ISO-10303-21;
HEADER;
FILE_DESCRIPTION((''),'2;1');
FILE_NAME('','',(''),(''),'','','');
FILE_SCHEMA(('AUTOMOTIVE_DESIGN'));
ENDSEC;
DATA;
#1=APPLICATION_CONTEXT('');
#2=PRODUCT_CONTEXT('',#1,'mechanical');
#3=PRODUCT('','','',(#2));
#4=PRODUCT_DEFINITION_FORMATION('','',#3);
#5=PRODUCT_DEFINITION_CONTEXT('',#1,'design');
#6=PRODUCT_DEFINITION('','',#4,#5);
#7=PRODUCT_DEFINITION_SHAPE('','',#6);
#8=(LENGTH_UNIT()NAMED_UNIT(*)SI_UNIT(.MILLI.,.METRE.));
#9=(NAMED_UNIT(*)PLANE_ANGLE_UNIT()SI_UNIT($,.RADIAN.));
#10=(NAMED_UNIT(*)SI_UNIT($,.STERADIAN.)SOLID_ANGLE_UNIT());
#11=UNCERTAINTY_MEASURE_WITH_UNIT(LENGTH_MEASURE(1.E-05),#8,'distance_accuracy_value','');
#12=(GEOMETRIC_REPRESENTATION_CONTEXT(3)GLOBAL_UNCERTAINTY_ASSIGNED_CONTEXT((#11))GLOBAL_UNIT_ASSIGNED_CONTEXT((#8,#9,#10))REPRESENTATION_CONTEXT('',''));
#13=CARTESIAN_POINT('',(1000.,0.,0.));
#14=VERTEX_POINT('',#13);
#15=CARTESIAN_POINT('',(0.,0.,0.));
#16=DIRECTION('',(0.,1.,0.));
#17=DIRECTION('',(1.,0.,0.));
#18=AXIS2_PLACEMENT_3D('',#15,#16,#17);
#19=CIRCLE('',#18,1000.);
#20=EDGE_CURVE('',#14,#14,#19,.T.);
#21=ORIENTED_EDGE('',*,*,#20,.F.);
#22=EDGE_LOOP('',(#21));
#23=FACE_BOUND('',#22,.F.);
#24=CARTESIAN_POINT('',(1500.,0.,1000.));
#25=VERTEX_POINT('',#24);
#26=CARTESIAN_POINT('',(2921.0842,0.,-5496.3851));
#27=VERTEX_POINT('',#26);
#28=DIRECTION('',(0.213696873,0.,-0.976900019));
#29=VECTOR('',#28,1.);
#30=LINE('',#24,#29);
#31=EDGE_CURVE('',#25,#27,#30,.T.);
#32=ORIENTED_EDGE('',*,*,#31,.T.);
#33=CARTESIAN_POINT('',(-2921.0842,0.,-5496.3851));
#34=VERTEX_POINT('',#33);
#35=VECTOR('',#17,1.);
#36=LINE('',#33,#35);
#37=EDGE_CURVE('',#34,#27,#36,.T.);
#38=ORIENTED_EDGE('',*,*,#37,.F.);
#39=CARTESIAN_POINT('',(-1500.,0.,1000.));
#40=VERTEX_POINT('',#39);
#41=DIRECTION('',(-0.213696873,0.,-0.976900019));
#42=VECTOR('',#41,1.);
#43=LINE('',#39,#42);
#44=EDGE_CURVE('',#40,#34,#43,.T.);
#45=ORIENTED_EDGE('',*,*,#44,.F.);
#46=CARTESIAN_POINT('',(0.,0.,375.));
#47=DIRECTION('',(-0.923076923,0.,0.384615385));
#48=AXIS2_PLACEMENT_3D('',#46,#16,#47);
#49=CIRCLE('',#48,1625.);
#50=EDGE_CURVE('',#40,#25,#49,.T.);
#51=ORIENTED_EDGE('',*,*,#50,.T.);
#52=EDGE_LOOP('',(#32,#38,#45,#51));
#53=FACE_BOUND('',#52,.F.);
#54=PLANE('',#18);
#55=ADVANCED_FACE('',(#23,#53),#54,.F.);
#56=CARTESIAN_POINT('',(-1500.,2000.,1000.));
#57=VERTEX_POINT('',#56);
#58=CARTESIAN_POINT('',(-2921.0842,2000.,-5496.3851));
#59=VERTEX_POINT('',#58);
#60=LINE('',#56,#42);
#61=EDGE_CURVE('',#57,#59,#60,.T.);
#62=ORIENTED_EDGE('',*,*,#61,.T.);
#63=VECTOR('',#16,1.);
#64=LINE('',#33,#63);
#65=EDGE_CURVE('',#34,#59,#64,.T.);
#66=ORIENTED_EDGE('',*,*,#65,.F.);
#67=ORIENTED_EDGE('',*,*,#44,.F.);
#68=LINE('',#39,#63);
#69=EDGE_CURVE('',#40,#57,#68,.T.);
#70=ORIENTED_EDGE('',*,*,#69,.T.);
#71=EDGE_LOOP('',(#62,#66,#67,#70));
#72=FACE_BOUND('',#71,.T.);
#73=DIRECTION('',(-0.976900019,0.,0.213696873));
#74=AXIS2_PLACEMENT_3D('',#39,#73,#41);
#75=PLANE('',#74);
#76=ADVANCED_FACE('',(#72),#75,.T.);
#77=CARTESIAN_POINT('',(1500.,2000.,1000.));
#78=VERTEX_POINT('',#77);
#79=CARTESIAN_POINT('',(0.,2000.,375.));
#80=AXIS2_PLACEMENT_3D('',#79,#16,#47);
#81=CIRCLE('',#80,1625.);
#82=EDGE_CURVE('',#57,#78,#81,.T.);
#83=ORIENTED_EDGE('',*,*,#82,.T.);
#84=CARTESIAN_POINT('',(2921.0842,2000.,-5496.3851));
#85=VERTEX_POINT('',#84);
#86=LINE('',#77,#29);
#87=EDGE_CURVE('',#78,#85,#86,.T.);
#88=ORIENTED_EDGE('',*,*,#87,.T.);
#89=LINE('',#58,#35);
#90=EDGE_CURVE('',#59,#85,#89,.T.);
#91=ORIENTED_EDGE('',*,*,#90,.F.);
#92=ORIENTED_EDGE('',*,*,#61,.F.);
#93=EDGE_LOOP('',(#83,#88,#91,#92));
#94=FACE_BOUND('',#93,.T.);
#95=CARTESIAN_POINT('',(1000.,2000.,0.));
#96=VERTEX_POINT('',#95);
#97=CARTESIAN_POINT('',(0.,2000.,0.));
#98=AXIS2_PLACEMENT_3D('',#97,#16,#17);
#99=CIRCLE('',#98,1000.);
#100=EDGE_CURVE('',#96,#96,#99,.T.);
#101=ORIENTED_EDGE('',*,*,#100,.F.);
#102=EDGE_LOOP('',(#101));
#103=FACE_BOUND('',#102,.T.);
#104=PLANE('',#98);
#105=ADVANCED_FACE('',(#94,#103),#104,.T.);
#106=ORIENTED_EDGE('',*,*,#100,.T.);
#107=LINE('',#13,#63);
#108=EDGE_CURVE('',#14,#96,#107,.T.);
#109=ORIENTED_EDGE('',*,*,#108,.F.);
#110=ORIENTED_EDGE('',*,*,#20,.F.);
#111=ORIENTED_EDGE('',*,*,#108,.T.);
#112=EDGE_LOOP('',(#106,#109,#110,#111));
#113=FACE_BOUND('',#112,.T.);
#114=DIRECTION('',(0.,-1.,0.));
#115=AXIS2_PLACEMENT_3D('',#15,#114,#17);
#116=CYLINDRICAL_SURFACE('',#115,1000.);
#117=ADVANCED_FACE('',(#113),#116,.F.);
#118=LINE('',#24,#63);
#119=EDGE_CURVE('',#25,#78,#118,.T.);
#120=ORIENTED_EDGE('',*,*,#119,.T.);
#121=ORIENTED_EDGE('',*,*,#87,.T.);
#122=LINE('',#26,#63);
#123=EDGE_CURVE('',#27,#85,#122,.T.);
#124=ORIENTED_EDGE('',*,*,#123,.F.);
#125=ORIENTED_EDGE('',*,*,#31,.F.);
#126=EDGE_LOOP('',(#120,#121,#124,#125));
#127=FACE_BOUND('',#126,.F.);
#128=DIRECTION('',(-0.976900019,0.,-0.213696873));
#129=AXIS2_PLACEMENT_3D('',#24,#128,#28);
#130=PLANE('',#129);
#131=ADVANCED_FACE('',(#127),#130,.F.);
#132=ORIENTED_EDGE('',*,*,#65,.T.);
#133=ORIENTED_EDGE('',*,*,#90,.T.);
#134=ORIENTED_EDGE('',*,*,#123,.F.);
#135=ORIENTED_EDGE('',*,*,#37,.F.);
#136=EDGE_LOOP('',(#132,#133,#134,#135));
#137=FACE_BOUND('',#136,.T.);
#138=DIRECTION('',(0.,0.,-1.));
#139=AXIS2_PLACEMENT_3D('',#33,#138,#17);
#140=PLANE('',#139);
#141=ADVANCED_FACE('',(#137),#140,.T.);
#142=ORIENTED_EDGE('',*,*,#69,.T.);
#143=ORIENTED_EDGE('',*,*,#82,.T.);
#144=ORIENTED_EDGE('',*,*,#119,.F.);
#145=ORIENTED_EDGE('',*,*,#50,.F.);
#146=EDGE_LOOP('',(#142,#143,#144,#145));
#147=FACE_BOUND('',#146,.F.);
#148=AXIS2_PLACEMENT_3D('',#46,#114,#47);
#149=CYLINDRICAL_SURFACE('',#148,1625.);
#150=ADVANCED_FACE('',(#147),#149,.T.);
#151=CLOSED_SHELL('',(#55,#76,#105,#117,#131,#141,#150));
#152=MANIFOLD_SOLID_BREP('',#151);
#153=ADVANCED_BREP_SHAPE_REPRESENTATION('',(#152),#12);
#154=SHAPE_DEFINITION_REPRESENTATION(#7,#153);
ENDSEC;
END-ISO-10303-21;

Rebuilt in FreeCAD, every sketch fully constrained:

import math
import FreeCAD as App
import Part
import Sketcher

V = App.Vector

doc = App.newDocument("Part")
body = doc.addObject("PartDesign::Body", "Body")

sketch1 = body.newObject("Sketcher::SketchObject", "Sketch")
sketch1.AttachmentSupport = (doc.getObject("XZ_Plane"), [""])
sketch1.MapMode = "FlatFace"
sketch1.addGeometry([
    Part.LineSegment(V(-2921.0842, -5496.3851, 0), V(-1500, 1000, 0)),
    Part.ArcOfCircle(Part.Circle(V(0, 375, 0), V(0, 0, 1), 1625), math.radians(22.619865), math.radians(157.380135)),
    Part.LineSegment(V(1500, 1000, 0), V(2921.0842, -5496.3851, 0)),
    Part.LineSegment(V(2921.0842, -5496.3851, 0), V(-2921.0842, -5496.3851, 0)),
    Part.Circle(V(0, 0, 0), V(0, 0, 1), 1000),
], False)
sketch1.addConstraint([
    Sketcher.Constraint("Coincident", 0, 2, 1, 2),
    Sketcher.Constraint("Coincident", 1, 1, 2, 1),
    Sketcher.Constraint("Coincident", 2, 2, 3, 1),
    Sketcher.Constraint("Coincident", 3, 2, 0, 1),
    Sketcher.Constraint("Horizontal", 3),
    Sketcher.Constraint("Coincident", 4, 3, -1, 1),
    Sketcher.Constraint("PointOnObject", 1, 3, -2),
    Sketcher.Constraint("Diameter", 4, 2000.0),
    Sketcher.Constraint("Radius", 1, 1625.0),
    Sketcher.Constraint("Distance", 0, 6650.0),
    Sketcher.Constraint("Distance", 2, 6650.0),
    Sketcher.Constraint("DistanceY", -1, 1, 1, 3, 375.0),
    Sketcher.Constraint("DistanceX", 0, 2, -1, 1, 1500.0),
    Sketcher.Constraint("DistanceX", 3, 2, 3, 1, 5842.1684),
    Sketcher.Constraint("DistanceY", 2, 2, -1, 1, 5496.385),
])
pad1 = body.newObject("PartDesign::Pad", "Pad")
pad1.Profile = sketch1
pad1.Length = 2000
pad1.Reversed = True

doc.recompute()
